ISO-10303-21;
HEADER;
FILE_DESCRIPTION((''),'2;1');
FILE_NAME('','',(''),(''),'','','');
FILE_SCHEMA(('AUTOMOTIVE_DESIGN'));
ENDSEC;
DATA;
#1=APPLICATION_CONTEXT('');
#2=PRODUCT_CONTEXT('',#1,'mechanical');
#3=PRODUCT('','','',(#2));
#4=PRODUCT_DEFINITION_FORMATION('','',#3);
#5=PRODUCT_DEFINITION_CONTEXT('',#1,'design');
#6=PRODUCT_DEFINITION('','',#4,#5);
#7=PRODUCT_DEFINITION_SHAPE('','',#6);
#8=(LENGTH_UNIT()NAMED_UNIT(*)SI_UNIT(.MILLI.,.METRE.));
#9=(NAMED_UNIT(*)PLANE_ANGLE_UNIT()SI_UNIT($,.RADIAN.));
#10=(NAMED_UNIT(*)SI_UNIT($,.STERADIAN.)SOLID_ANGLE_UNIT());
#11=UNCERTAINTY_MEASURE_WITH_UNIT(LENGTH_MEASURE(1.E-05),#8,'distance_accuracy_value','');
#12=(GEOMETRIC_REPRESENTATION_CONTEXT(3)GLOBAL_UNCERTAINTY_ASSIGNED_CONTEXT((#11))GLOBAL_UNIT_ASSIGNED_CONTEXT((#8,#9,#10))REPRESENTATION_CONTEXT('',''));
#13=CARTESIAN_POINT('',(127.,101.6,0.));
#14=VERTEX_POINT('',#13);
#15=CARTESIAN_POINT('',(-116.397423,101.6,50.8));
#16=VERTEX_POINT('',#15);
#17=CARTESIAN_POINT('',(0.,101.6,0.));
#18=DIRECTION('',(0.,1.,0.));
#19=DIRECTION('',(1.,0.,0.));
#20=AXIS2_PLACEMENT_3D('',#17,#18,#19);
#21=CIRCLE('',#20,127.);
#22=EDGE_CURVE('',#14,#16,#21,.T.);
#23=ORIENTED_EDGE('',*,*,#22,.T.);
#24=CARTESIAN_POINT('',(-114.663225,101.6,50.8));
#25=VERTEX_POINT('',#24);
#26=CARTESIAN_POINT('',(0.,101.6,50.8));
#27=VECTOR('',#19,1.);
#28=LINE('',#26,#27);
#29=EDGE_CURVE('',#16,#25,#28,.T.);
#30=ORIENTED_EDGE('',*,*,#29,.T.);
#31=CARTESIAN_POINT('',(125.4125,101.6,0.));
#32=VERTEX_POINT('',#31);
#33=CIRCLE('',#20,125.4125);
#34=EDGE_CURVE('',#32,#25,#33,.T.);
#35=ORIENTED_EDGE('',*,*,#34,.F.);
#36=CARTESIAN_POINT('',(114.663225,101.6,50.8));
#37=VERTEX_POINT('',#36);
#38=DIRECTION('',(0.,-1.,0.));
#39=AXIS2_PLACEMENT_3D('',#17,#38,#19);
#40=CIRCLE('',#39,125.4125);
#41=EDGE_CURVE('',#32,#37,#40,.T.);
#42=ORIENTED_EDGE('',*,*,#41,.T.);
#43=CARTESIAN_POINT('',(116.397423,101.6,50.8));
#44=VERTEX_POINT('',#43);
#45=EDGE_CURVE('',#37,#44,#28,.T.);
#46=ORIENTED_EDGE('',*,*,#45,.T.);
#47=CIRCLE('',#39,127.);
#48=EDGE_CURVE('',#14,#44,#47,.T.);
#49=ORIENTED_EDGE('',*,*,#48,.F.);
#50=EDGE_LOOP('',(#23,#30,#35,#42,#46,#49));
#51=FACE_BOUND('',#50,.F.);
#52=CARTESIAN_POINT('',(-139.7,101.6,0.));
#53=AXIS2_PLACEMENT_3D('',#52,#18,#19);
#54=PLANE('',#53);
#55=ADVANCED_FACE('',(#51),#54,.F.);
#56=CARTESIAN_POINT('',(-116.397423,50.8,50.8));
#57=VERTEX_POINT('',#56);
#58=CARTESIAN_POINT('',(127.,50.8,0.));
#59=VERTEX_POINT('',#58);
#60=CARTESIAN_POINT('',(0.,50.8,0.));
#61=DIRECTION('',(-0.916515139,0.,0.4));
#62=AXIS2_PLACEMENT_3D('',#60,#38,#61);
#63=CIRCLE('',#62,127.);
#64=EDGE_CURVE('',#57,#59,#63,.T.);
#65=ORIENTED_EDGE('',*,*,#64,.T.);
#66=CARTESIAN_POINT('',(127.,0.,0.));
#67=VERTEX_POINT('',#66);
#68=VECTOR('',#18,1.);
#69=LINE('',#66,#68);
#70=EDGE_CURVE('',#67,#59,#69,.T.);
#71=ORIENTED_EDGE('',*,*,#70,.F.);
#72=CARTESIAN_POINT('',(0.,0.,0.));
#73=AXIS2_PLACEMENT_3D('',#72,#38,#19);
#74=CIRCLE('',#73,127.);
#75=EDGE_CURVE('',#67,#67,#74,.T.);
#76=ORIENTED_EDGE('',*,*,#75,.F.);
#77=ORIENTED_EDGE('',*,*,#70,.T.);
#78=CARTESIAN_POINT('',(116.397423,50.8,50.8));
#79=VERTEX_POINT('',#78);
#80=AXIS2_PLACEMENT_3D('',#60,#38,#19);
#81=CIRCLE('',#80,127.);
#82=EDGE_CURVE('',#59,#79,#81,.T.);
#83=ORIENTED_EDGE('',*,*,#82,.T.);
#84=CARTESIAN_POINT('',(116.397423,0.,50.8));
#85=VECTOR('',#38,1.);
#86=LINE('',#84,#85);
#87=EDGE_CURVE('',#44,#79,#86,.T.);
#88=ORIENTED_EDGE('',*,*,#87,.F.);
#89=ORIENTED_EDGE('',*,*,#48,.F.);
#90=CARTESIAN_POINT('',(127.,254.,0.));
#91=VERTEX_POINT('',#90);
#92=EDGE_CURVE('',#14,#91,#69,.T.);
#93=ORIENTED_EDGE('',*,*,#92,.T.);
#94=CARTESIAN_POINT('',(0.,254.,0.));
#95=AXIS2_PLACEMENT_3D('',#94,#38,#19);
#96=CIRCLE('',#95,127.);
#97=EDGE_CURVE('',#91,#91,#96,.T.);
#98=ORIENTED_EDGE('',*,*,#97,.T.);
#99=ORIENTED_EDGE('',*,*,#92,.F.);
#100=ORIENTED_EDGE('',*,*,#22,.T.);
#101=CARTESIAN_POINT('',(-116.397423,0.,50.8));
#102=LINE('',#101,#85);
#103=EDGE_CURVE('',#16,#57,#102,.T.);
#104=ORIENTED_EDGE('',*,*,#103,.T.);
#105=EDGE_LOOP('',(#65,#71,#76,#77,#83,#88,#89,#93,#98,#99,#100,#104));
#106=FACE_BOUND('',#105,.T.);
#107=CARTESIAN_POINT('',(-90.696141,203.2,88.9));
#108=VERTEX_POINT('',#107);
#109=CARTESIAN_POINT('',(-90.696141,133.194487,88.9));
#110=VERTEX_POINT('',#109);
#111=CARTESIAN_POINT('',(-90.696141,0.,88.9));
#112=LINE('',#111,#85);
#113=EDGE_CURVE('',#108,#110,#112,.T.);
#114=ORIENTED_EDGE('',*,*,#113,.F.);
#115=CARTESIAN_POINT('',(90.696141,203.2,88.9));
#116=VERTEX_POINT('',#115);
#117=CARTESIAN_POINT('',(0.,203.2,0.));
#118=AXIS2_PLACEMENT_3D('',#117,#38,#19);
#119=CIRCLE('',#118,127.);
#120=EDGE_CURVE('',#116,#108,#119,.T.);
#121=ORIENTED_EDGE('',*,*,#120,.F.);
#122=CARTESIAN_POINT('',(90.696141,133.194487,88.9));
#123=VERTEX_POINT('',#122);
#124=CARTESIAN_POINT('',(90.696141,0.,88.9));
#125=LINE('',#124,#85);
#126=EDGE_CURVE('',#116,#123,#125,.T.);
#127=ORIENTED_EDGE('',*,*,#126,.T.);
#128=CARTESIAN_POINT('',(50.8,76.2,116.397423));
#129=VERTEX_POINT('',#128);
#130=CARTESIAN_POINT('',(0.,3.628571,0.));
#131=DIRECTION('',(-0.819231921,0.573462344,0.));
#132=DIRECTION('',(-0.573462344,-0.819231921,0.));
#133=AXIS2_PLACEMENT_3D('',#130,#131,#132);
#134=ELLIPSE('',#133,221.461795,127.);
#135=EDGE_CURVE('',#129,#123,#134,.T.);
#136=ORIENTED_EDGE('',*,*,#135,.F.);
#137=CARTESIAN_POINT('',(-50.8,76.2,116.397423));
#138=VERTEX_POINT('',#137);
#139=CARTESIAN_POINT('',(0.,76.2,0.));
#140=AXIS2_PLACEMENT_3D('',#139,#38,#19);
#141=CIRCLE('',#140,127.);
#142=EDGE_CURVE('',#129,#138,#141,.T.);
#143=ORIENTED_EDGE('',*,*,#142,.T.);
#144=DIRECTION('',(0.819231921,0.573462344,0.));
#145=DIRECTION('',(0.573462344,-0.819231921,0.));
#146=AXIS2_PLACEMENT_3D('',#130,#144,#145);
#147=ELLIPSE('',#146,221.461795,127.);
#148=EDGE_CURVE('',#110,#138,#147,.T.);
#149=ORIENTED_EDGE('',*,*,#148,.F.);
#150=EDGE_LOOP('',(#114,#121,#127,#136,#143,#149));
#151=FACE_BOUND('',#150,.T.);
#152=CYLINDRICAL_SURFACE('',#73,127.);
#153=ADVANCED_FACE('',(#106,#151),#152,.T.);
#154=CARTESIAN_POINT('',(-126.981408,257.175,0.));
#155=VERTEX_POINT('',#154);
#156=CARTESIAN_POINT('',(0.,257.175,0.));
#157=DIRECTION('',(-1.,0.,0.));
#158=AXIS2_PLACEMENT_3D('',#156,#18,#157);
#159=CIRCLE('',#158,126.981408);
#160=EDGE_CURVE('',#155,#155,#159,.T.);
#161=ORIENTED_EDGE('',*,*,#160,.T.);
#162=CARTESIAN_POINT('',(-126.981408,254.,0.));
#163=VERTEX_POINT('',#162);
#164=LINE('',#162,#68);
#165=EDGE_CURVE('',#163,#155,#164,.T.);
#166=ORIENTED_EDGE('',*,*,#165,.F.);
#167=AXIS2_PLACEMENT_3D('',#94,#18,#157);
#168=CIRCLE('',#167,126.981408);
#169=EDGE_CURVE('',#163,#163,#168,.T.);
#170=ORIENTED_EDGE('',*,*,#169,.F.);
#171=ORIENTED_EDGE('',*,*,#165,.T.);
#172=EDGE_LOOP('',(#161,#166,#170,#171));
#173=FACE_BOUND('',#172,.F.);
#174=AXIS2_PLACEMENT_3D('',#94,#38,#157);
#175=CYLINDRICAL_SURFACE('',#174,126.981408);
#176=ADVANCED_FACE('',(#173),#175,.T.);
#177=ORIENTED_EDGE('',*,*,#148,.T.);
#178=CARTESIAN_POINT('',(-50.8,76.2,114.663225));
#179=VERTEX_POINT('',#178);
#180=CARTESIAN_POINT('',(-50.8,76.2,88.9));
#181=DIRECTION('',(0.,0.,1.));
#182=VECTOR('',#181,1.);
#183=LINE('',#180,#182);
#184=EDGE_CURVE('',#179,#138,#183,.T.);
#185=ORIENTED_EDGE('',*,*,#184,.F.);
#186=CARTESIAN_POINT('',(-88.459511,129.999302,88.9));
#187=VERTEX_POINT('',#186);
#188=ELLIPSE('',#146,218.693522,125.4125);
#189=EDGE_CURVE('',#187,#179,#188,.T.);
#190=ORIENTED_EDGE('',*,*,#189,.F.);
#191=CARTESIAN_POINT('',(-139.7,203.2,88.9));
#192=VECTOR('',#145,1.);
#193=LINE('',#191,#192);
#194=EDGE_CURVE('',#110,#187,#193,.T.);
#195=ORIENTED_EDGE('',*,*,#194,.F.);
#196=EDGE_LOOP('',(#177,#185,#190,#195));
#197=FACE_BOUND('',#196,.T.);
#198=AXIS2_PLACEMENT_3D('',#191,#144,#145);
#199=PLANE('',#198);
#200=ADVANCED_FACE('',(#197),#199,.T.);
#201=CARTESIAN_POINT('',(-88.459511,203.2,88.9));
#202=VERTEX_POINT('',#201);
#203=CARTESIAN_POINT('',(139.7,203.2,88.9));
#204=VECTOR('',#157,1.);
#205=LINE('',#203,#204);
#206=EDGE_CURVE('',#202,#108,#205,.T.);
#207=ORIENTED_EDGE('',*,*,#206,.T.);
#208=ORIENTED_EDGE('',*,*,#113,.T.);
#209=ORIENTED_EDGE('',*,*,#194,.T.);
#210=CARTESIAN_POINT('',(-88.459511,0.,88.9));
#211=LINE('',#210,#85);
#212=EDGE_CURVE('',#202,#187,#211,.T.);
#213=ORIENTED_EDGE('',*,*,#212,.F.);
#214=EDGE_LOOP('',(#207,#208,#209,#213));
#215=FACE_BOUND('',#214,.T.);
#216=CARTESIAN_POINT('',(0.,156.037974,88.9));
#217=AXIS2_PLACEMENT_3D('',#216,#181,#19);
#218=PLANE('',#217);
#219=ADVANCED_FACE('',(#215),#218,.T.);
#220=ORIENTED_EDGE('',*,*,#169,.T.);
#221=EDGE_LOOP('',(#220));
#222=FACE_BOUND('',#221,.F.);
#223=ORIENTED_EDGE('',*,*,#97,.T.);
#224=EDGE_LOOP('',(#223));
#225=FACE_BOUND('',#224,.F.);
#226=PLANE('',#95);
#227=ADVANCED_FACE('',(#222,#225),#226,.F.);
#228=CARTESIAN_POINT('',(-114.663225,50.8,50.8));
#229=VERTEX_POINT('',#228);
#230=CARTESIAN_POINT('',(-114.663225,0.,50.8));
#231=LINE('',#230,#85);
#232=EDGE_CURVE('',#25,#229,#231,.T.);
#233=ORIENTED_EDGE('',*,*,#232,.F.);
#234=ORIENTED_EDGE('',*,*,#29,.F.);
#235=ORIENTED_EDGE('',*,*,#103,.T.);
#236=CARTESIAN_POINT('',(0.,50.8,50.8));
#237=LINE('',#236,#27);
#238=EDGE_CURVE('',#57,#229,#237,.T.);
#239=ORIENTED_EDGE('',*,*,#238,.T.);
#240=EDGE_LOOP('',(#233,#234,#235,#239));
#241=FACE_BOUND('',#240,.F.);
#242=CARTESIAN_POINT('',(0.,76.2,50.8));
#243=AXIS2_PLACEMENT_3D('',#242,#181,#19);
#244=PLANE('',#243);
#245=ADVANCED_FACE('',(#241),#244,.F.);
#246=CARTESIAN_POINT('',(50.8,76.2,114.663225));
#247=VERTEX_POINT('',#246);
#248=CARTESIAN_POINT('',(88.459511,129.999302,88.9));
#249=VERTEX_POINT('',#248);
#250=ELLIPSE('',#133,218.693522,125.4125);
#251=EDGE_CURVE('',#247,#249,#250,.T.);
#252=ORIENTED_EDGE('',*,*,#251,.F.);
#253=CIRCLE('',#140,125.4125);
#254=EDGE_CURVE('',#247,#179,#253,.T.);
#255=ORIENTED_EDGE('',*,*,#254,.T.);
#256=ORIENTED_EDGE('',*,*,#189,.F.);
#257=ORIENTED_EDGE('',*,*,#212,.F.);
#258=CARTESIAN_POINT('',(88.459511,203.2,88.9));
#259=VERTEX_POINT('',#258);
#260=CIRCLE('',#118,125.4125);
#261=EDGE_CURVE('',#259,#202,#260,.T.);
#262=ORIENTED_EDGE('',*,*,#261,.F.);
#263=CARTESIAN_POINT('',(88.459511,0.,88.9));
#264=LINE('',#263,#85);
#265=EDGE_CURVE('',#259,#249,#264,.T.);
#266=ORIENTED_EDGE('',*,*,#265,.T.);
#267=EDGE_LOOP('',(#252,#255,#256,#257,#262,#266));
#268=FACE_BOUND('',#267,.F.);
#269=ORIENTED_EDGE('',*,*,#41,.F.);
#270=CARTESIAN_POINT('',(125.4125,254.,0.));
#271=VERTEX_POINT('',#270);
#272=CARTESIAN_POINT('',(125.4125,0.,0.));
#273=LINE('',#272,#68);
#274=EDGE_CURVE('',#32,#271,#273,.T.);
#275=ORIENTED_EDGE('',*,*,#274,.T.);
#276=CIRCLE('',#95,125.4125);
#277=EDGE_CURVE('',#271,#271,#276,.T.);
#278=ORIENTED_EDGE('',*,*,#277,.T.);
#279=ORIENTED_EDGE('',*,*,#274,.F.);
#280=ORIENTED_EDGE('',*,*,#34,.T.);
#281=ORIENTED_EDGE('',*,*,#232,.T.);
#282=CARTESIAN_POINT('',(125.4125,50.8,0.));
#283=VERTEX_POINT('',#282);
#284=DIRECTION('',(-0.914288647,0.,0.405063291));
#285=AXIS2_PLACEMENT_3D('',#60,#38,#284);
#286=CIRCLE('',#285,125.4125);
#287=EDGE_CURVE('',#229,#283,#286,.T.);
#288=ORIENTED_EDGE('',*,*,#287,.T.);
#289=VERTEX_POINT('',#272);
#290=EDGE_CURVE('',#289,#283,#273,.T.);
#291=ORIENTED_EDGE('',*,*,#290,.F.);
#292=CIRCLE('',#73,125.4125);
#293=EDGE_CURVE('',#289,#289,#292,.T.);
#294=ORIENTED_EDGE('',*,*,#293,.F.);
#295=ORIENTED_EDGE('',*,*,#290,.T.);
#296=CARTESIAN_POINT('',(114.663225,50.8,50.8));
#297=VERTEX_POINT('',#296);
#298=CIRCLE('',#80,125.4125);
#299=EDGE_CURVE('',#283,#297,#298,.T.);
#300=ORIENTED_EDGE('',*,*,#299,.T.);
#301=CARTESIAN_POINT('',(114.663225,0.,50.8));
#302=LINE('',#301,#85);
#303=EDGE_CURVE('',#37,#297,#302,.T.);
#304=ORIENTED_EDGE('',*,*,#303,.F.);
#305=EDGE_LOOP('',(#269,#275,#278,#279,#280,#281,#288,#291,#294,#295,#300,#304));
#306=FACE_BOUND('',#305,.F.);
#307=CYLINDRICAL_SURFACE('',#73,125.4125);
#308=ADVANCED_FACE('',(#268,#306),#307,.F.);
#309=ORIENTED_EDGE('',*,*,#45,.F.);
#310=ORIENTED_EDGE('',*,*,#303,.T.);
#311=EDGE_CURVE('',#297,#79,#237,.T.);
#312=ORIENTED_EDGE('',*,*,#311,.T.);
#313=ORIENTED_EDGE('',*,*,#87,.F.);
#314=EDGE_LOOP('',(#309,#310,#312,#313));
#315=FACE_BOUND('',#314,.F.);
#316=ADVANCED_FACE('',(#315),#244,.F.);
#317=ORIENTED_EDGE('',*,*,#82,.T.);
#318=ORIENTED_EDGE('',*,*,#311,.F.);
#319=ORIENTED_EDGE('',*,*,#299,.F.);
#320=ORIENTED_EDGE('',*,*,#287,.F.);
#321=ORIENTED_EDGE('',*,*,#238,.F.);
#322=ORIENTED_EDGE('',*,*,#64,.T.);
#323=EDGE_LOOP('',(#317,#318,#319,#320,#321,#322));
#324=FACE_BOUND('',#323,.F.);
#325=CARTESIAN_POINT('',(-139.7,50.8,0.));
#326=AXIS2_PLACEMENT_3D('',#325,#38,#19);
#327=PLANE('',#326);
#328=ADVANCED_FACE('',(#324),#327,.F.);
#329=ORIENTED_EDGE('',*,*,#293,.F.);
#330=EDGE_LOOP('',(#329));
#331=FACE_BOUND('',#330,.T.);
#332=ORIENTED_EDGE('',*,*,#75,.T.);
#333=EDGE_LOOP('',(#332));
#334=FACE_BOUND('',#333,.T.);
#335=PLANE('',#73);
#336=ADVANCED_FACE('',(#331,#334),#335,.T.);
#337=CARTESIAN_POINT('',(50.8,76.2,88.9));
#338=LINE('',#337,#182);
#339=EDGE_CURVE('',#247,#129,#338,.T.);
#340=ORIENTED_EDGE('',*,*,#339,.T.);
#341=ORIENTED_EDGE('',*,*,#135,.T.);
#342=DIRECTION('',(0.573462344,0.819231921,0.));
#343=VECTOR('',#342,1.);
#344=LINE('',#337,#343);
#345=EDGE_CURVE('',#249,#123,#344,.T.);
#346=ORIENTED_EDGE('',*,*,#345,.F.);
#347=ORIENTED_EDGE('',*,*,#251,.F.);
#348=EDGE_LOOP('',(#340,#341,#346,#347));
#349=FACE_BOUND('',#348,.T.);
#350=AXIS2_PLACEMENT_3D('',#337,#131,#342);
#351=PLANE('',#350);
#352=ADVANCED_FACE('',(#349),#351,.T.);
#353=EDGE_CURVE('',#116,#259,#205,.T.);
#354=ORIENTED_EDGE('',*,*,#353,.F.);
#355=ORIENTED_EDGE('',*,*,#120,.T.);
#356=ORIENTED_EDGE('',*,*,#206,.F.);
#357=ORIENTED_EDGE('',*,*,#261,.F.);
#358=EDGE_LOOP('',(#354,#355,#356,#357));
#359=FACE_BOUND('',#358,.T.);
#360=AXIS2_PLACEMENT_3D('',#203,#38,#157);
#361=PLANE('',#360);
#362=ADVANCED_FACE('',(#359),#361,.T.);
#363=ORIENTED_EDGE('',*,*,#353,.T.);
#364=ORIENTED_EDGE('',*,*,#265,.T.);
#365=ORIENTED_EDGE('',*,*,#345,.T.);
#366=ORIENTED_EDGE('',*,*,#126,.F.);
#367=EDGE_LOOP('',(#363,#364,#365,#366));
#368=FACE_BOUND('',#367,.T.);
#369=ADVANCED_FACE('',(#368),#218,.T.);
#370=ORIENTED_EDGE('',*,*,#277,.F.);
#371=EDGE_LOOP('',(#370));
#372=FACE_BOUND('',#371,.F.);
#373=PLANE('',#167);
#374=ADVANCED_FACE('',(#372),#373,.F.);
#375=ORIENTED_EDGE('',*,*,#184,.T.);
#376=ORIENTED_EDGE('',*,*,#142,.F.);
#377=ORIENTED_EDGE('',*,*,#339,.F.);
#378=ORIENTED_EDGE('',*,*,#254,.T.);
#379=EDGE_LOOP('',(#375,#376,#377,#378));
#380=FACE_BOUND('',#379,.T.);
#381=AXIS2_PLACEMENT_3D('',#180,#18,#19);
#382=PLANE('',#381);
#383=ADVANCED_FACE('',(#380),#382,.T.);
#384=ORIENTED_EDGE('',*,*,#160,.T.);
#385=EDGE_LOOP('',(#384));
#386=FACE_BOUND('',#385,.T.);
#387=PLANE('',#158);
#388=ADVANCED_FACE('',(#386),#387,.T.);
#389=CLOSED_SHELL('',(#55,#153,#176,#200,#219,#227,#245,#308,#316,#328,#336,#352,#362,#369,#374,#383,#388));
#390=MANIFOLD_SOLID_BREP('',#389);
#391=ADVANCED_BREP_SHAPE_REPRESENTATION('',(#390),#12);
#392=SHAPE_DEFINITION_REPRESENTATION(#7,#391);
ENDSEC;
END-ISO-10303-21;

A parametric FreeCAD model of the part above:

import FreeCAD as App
import Part
import Sketcher
Q = App.Units.Quantity


def add_polygon(sketch, points):
    """Adds a closed chain of lines whose ends are joined by coincident constraints."""
    first, n = sketch.GeometryCount, len(points)
    for a, b in zip(points, points[1:] + points[:1]):
        sketch.addGeometry(Part.LineSegment(App.Vector(*a, 0), App.Vector(*b, 0)), False)
    for i in range(n):
        sketch.addConstraint(Sketcher.Constraint("Coincident", first + i, 2, first + (i + 1) % n, 1))

doc = App.newDocument("Part")
body = doc.addObject("PartDesign::Body", "Body")

sketch1 = body.newObject("Sketcher::SketchObject", "Sketch")
sketch1.AttachmentSupport = (doc.getObject("XZ_Plane"), [""])
sketch1.MapMode = "FlatFace"
sketch1.addGeometry([
    Part.Circle(App.Vector(0, 0, 0), App.Vector(0, 0, 1), 127),
    Part.Circle(App.Vector(0, 0, 0), App.Vector(0, 0, 1), 125),
], False)
sketch1.addConstraint([
    Sketcher.Constraint("Coincident", 0, 3, -1, 1),
    Sketcher.Constraint("Coincident", 1, 3, -1, 1),
    Sketcher.Constraint("Diameter", 0, Q("10 in")),
    Sketcher.Constraint("Diameter", 1, Q("9.875 in")),
])
pad1 = body.newObject("PartDesign::Pad", "Pad")
pad1.Profile = sketch1
pad1.Length = Q("10 in")
pad1.Reversed = True

sketch2 = body.newObject("Sketcher::SketchObject", "Sketch001")
sketch2.AttachmentSupport = (doc.getObject("XY_Plane"), [""])
sketch2.MapMode = "FlatFace"
add_polygon(sketch2, [(-140, 102), (-140, 51), (140, 51), (140, 102)])
sketch2.addConstraint([
    Sketcher.Constraint("Vertical", 0),
    Sketcher.Constraint("Horizontal", 1),
    Sketcher.Constraint("Vertical", 2),
    Sketcher.Constraint("Horizontal", 3),
    Sketcher.Constraint("DistanceX", 1, 1, 1, 2, Q("11 in")),
    Sketcher.Constraint("DistanceY", 0, 2, 0, 1, Q("2 in")),
    Sketcher.Constraint("DistanceY", -1, 1, 0, 2, Q("2 in")),
    Sketcher.Constraint("DistanceX", 0, 2, -1, 1, Q("5.5 in")),
])
pocket1 = body.newObject("PartDesign::Pocket", "Pocket")
pocket1.Profile = sketch2
pocket1.Type = "TwoLengths"
pocket1.Length = Q("8 in")
pocket1.Length2 = Q("2 in")

sketch3 = body.newObject("Sketcher::SketchObject", "Sketch002")
sketch3.AttachmentSupport = (doc.getObject("XY_Plane"), [""])
sketch3.MapMode = "FlatFace"
sketch3.AttachmentOffset = App.Placement(App.Vector(0, 0, 3.5 * 25.4), App.Rotation())
add_polygon(sketch3, [(-51, 76), (51, 76), (140, 203), (-140, 203)])
sketch3.addConstraint([
    Sketcher.Constraint("Horizontal", 0),
    Sketcher.Constraint("Horizontal", 2),
    Sketcher.Constraint("Equal", 1, 3),
    Sketcher.Constraint("DistanceX", 0, 1, 0, 2, Q("4 in")),
    Sketcher.Constraint("DistanceX", 2, 2, 2, 1, Q("11 in")),
    Sketcher.Constraint("DistanceX", -1, 1, 0, 2, Q("2 in")),
    Sketcher.Constraint("DistanceY", -1, 1, 0, 2, Q("3 in")),
    Sketcher.Constraint("DistanceY", -1, 1, 1, 2, Q("8 in")),
])
pocket2 = body.newObject("PartDesign::Pocket", "Pocket001")
pocket2.Profile = sketch3
pocket2.Length = Q("3 in")
pocket2.Reversed = True

sketch4 = body.newObject("Sketcher::SketchObject", "Sketch003")
sketch4.AttachmentSupport = (doc.getObject("XZ_Plane"), [""])
sketch4.MapMode = "FlatFace"
sketch4.AttachmentOffset = App.Placement(App.Vector(0, 0, -10 * 25.4), App.Rotation())
sketch4.addGeometry(Part.Circle(App.Vector(0, 0, 0), App.Vector(0, 0, 1), 127), False)
sketch4.addConstraint([
    Sketcher.Constraint("Coincident", 0, 3, -1, 1),
    Sketcher.Constraint("Diameter", 0, Q("253.962815 mm")),
])
pad2 = body.newObject("PartDesign::Pad", "Pad001")
pad2.Profile = sketch4
pad2.Length = Q("0.125 in")
pad2.Reversed = True

doc.recompute()
